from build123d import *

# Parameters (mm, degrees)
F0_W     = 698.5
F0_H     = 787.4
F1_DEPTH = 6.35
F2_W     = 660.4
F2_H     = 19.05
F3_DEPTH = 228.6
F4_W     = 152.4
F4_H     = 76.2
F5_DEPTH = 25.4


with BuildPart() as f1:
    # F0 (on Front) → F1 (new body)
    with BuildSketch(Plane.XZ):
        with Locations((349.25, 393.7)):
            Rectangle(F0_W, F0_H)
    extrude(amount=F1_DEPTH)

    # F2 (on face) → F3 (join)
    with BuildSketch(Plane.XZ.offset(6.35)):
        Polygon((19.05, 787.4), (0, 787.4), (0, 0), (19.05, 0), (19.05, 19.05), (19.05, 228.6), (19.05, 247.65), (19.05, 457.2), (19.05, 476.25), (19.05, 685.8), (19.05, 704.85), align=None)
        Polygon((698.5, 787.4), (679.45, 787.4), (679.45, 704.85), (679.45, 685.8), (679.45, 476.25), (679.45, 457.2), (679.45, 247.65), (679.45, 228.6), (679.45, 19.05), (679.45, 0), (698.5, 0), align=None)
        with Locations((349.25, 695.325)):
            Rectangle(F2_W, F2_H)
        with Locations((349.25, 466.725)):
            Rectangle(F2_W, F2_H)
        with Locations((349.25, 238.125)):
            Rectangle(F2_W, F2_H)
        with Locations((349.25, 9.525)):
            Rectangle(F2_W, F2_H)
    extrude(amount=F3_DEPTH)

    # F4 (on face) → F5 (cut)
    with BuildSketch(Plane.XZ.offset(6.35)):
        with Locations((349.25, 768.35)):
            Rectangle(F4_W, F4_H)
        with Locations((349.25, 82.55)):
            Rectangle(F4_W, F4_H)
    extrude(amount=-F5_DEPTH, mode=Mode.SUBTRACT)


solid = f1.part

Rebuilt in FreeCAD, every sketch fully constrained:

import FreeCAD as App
import Part
import Sketcher

V = App.Vector
Q = App.Units.Quantity


def add_polygon(sketch, points):
    """Adds a closed chain of lines whose ends are joined by coincident constraints."""
    first, n = sketch.GeometryCount, len(points)
    for a, b in zip(points, points[1:] + points[:1]):
        sketch.addGeometry(Part.LineSegment(App.Vector(*a, 0), App.Vector(*b, 0)), False)
    for i in range(n):
        sketch.addConstraint(Sketcher.Constraint("Coincident", first + i, 2, first + (i + 1) % n, 1))

doc = App.newDocument("Part")
body = doc.addObject("PartDesign::Body", "Body")

# Sketch on XZ plane
sketch1 = doc.addObject("Sketcher::SketchObject", "Sketch")
body.addObject(sketch1)
sketch1.AttachmentSupport = (doc.XZ_Plane, [""])
sketch1.MapMode = "FlatFace"
add_polygon(sketch1, [(0, 787), (0, 0), (698, 0), (698, 787)])  # lines 0-3
sketch1.addConstraint([
    Sketcher.Constraint("Vertical", 0),
    Sketcher.Constraint("Horizontal", 1),
    Sketcher.Constraint("Vertical", 2),
    Sketcher.Constraint("Horizontal", 3),
    Sketcher.Constraint("Coincident", 0, 2, -1, 1),
    Sketcher.Constraint("DistanceY", 0, 2, 0, 1, Q("31 in")),
    Sketcher.Constraint("DistanceX", 1, 1, 1, 2, Q("27.5 in")),
])
pad1 = doc.addObject("PartDesign::Pad", "Pad")
body.addObject(pad1)
pad1.Profile = sketch1
pad1.Length = Q("0.25 in")

# Sketch on XZ plane
sketch2 = doc.addObject("Sketcher::SketchObject", "Sketch001")
body.addObject(sketch2)
sketch2.AttachmentSupport = (doc.XZ_Plane, [""])
sketch2.MapMode = "FlatFace"
sketch2.AttachmentOffset = App.Placement(V(0, 0, 0.25 * 25.4), App.Rotation())
add_polygon(sketch2, [(19, 787), (0, 787), (0, 0), (698, 0), (698, 787), (679, 787), (679, 705), (19, 705)])  # lines 0-7
add_polygon(sketch2, [(19, 19), (19, 229), (679, 229), (679, 19)])  # lines 8-11
add_polygon(sketch2, [(19, 248), (19, 457), (679, 457), (679, 248)])  # lines 12-15
add_polygon(sketch2, [(19, 476), (19, 686), (679, 686), (679, 476)])  # lines 16-19
sketch2.addConstraint([
    Sketcher.Constraint("Horizontal", 0),
    Sketcher.Constraint("Vertical", 1),
    Sketcher.Constraint("Horizontal", 2),
    Sketcher.Constraint("Vertical", 3),
    Sketcher.Constraint("Horizontal", 4),
    Sketcher.Constraint("Vertical", 5),
    Sketcher.Constraint("Horizontal", 6),
    Sketcher.Constraint("Vertical", 7),
    Sketcher.Constraint("Vertical", 8),
    Sketcher.Constraint("Horizontal", 9),
    Sketcher.Constraint("Vertical", 10),
    Sketcher.Constraint("Horizontal", 11),
    Sketcher.Constraint("Vertical", 12),
    Sketcher.Constraint("Horizontal", 13),
    Sketcher.Constraint("Vertical", 14),
    Sketcher.Constraint("Horizontal", 15),
    Sketcher.Constraint("Vertical", 16),
    Sketcher.Constraint("Horizontal", 17),
    Sketcher.Constraint("Vertical", 18),
    Sketcher.Constraint("Horizontal", 19),
    Sketcher.Constraint("Coincident", 1, 2, -1, 1),
    Sketcher.Constraint("Horizontal", 0, 2, 3, 2),
    Sketcher.Constraint("Vertical", 7, 2, 8, 2),
    Sketcher.Constraint("Vertical", 5, 2, 9, 2),
    Sketcher.Constraint("Vertical", 11, 2, 12, 2),
    Sketcher.Constraint("Vertical", 10, 2, 13, 2),
    Sketcher.Constraint("Vertical", 15, 2, 16, 2),
    Sketcher.Constraint("Vertical", 14, 2, 17, 2),
    Sketcher.Constraint("Equal", 0, 4),
    Sketcher.Constraint("Equal", 10, 12),
    Sketcher.Constraint("Equal", 14, 16),
    Sketcher.Constraint("DistanceX", 6, 2, 6, 1, Q("26 in")),
    Sketcher.Constraint("DistanceY", 1, 2, 1, 1, Q("31 in")),
    Sketcher.Constraint("DistanceX", 2, 1, 2, 2, Q("27.5 in")),
    Sketcher.Constraint("DistanceY", -1, 1, 8, 2, Q("9 in")),
    Sketcher.Constraint("DistanceY", -1, 1, 12, 2, Q("18 in")),
    Sketcher.Constraint("DistanceY", -1, 1, 16, 2, Q("27 in")),
    Sketcher.Constraint("DistanceY", 10, 2, 5, 2, Q("27 in")),
    Sketcher.Constraint("DistanceY", 5, 2, 5, 1, Q("3.25 in")),
])
pad2 = doc.addObject("PartDesign::Pad", "Pad001")
body.addObject(pad2)
pad2.Profile = sketch2
pad2.Length = Q("9 in")

# Sketch on XZ plane
sketch3 = doc.addObject("Sketcher::SketchObject", "Sketch002")
body.addObject(sketch3)
sketch3.AttachmentSupport = (doc.XZ_Plane, [""])
sketch3.MapMode = "FlatFace"
sketch3.AttachmentOffset = App.Placement(V(0, 0, 0.25 * 25.4), App.Rotation())
add_polygon(sketch3, [(273, 806), (273, 730), (425, 730), (425, 806)])  # lines 0-3
add_polygon(sketch3, [(273, 121), (273, 44), (425, 44), (425, 121)])  # lines 4-7
sketch3.addConstraint([
    Sketcher.Constraint("Vertical", 0),
    Sketcher.Constraint("Horizontal", 1),
    Sketcher.Constraint("Vertical", 2),
    Sketcher.Constraint("Horizontal", 3),
    Sketcher.Constraint("Vertical", 4),
    Sketcher.Constraint("Horizontal", 5),
    Sketcher.Constraint("Vertical", 6),
    Sketcher.Constraint("Horizontal", 7),
    Sketcher.Constraint("Vertical", 3, 2, 4, 2),
    Sketcher.Constraint("Vertical", 2, 2, 5, 2),
    Sketcher.Constraint("Equal", 2, 4),
    Sketcher.Constraint("DistanceX", 1, 1, 1, 2, Q("6 in")),
    Sketcher.Constraint("DistanceY", 0, 2, 0, 1, Q("3 in")),
    Sketcher.Constraint("DistanceY", 4, 2, 0, 2, Q("27 in")),
    Sketcher.Constraint("DistanceX", -1, 1, 0, 2, Q("10.75 in")),
    Sketcher.Constraint("DistanceY", -1, 1, 0, 2, Q("28.75 in")),
])
pocket1 = doc.addObject("PartDesign::Pocket", "Pocket")
body.addObject(pocket1)
pocket1.Profile = sketch3
pocket1.Length = Q("1 in")

doc.recompute()
